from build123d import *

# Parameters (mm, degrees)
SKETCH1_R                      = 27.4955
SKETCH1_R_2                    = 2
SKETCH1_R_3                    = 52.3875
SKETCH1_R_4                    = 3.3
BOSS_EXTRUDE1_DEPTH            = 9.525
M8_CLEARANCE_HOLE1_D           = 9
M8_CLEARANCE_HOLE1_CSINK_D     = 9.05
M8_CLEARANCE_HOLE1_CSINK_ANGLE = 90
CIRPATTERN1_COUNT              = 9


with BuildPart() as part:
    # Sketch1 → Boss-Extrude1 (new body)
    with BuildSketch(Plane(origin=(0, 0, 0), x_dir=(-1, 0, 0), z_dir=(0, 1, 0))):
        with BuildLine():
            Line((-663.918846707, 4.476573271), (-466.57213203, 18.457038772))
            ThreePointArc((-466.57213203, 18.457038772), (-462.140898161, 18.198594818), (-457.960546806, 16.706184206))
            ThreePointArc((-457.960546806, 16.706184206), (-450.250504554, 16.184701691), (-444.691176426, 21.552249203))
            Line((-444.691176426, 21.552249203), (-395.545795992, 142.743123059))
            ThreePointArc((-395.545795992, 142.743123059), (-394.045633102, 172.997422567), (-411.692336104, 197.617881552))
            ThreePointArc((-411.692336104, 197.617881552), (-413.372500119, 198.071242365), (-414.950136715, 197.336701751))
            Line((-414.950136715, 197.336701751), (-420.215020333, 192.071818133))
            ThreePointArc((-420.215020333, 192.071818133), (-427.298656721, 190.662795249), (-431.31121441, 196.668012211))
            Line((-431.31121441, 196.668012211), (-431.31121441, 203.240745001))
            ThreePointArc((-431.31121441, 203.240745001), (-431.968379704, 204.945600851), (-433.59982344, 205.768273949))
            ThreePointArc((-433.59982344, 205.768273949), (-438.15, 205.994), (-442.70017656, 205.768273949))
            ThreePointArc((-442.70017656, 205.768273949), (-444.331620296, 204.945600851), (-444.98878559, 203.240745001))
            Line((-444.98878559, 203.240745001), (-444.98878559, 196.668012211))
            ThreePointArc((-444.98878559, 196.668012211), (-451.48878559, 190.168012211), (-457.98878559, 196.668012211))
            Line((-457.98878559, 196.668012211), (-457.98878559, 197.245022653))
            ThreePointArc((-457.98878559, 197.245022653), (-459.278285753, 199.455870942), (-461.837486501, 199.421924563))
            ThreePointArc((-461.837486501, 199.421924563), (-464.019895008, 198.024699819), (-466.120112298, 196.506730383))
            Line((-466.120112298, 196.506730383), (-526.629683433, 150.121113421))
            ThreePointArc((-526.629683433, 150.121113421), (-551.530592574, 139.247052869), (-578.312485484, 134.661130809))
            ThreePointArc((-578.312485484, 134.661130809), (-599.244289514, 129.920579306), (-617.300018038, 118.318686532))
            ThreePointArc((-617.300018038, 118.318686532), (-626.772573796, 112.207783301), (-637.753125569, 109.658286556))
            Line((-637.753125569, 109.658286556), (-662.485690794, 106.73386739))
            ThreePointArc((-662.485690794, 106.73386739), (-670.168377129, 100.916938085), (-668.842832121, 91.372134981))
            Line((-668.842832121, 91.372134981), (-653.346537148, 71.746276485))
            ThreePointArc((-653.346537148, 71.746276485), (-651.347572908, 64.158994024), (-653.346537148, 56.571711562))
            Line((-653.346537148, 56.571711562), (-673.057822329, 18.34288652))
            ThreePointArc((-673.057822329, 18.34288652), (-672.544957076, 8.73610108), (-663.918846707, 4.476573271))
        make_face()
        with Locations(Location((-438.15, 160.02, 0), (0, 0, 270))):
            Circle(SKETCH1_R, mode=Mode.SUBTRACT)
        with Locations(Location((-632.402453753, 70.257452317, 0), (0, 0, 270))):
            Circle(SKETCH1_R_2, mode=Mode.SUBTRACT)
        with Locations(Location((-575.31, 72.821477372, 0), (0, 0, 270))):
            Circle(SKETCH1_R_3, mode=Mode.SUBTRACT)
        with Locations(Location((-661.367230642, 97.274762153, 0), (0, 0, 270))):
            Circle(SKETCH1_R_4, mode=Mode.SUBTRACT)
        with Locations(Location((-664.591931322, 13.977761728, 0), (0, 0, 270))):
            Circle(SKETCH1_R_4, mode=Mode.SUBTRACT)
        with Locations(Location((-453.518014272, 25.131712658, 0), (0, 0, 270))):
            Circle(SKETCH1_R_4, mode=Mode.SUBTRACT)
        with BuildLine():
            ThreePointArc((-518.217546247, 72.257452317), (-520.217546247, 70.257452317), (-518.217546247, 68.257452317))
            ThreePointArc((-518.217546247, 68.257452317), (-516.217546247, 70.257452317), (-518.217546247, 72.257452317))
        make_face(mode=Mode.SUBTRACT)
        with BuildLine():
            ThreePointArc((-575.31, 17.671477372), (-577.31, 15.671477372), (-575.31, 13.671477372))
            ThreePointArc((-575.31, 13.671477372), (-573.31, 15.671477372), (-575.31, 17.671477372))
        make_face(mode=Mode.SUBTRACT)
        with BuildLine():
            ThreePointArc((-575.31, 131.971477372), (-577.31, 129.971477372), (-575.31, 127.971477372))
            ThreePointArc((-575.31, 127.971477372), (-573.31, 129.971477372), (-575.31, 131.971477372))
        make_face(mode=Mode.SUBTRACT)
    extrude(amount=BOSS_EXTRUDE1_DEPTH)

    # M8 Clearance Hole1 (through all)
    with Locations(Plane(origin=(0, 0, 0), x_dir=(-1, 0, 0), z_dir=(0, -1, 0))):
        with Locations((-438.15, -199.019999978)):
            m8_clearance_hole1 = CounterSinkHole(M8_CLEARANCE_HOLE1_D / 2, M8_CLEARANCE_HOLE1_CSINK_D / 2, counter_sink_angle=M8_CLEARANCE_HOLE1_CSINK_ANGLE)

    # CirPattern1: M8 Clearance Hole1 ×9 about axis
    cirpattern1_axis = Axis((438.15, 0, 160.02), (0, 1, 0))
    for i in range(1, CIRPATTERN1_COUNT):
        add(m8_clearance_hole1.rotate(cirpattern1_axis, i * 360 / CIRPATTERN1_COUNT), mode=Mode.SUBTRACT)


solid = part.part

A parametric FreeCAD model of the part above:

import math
import FreeCAD as App
import Part
import Sketcher

V = App.Vector
Q = App.Units.Quantity

doc = App.newDocument("Part")
params = doc.addObject("Spreadsheet::Sheet", "Params")
for row, (alias, value) in enumerate([
    ("sketch1_radius", "0.1 in"),
    ("sketch1_radius2", "1.81 in"),
    ("sketch1_diameter", "4.125 in"),
    ("sketch1_diameter2", "2.165 in"),
    ("sketch1_radius3", "0.375 in"),
    ("pad1_length", "0.375 in"),
    ("hole_diameter", "9 mm"),
    ("hole_csink_diameter", "9.05 mm"),
], start=1):
    params.set(f"A{row}", alias)
    params.set(f"B{row}", "=" + value)
    params.setAlias(f"B{row}", alias)

body = doc.addObject("PartDesign::Body", "Body")

sketch1 = doc.addObject("Sketcher::SketchObject", "Sketch")
body.addObject(sketch1)
sketch1.AttachmentSupport = (doc.XZ_Plane, [""])
sketch1.MapMode = "FlatFace"
sketch1.addGeometry([
    Part.LineSegment(V(663.9, 4.5, 0), V(466.6, 18.5, 0)),
    Part.ArcOfCircle(Part.Circle(V(465.3, 2.9, 0), V(0, 0, 1), 15.6), math.radians(85), math.radians(118)),
    Part.ArcOfCircle(Part.Circle(V(453.5, 25.1, 0), V(0, 0, 1), 9.5), math.radians(-158), math.radians(-62)),
    Part.LineSegment(V(444.7, 21.6, 0), V(395.5, 142.7, 0)),
    Part.ArcOfCircle(Part.Circle(V(438.2, 160, 0), V(0, 0, 1), 46), math.radians(125), math.radians(202)),
    Part.ArcOfCircle(Part.Circle(V(413.2, 195.5, 0), V(0, 0, 1), 2.5), math.radians(45), math.radians(125)),
    Part.LineSegment(V(415, 197.3, 0), V(420.2, 192.1, 0)),
    Part.ArcOfCircle(Part.Circle(V(424.8, 196.7, 0), V(0, 0, 1), 6.5), math.radians(-135), math.radians(0)),
    Part.LineSegment(V(431.3, 196.7, 0), V(431.3, 203.2, 0)),
    Part.ArcOfCircle(Part.Circle(V(433.9, 203.2, 0), V(0, 0, 1), 2.5), math.radians(96), math.radians(180)),
    Part.ArcOfCircle(Part.Circle(V(438.1, 160, 0), V(0, 0, 1), 46), math.radians(84.32), math.radians(95.68)),
    Part.ArcOfCircle(Part.Circle(V(442.4, 203.2, 0), V(0, 0, 1), 2.5), math.radians(0), math.radians(84)),
    Part.LineSegment(V(445, 203.2, 0), V(445, 196.7, 0)),
    Part.ArcOfCircle(Part.Circle(V(451.5, 196.7, 0), V(0, 0, 1), 6.5), math.radians(180), math.radians(360)),
    Part.LineSegment(V(458, 196.7, 0), V(458, 197.2, 0)),
    Part.ArcOfCircle(Part.Circle(V(460.5, 197.2, 0), V(0, 0, 1), 2.5), math.radians(59), math.radians(180)),
    Part.ArcOfCircle(Part.Circle(V(438.2, 160, 0), V(0, 0, 1), 46), math.radians(52.53), math.radians(58.99)),
    Part.LineSegment(V(466.1, 196.5, 0), V(526.6, 150.1, 0)),
    Part.ArcOfCircle(Part.Circle(V(583.8, 247, 0), V(0, 0, 1), 112.5), math.radians(-121), math.radians(-93)),
    Part.ArcOfCircle(Part.Circle(V(575.3, 72.8, 0), V(0, 0, 1), 61.9), math.radians(47), math.radians(87)),
    Part.ArcOfCircle(Part.Circle(V(639.6, 142.5, 0), V(0, 0, 1), 32.9), math.radians(-133), math.radians(-93)),
    Part.LineSegment(V(637.8, 109.7, 0), V(662.5, 106.7, 0)),
    Part.ArcOfCircle(Part.Circle(V(661.4, 97.3, 0), V(0, 0, 1), 9.5), math.radians(-38), math.radians(83)),
    Part.LineSegment(V(668.8, 91.4, 0), V(653.3, 71.7, 0)),
    Part.ArcOfCircle(Part.Circle(V(666.7, 64.2, 0), V(0, 0, 1), 15.4), math.radians(150), math.radians(210)),
    Part.LineSegment(V(653.3, 56.6, 0), V(673.1, 18.3, 0)),
    Part.ArcOfCircle(Part.Circle(V(664.6, 14, 0), V(0, 0, 1), 9.5), math.radians(-94), math.radians(27)),
    Part.Circle(V(664.6, 14, 0), V(0, 0, 1), 3.3),
    Part.Circle(V(575.3, 15.7, 0), V(0, 0, 1), 2),
    Part.Circle(V(632.4, 70.3, 0), V(0, 0, 1), 2),
    Part.Circle(V(661.4, 97.3, 0), V(0, 0, 1), 3.3),
    Part.Circle(V(575.3, 72.8, 0), V(0, 0, 1), 52.4),
    Part.Circle(V(453.5, 25.1, 0), V(0, 0, 1), 3.3),
    Part.Circle(V(518.2, 70.3, 0), V(0, 0, 1), 2),
    Part.Circle(V(575.3, 130, 0), V(0, 0, 1), 2),
    Part.Circle(V(438.1, 160, 0), V(0, 0, 1), 27.5),
], False)
sketch1.addConstraint([
    Sketcher.Constraint("Coincident", 0, 2, 1, 1),
    Sketcher.Constraint("Tangent", 1, 2, 2, 2),
    Sketcher.Constraint("Tangent", 2, 1, 3, 1),
    Sketcher.Constraint("Tangent", 3, 2, 4, 2),
    Sketcher.Constraint("Tangent", 4, 1, 5, 2),
    Sketcher.Constraint("Tangent", 5, 1, 6, 1),
    Sketcher.Constraint("Tangent", 6, 2, 7, 1),
    Sketcher.Constraint("Tangent", 7, 2, 8, 1),
    Sketcher.Constraint("Tangent", 8, 2, 9, 2),
    Sketcher.Constraint("Tangent", 9, 1, 10, 2),
    Sketcher.Constraint("Tangent", 10, 1, 11, 2),
    Sketcher.Constraint("Tangent", 11, 1, 12, 1),
    Sketcher.Constraint("Tangent", 12, 2, 13, 1),
    Sketcher.Constraint("Tangent", 13, 2, 14, 1),
    Sketcher.Constraint("Tangent", 14, 2, 15, 2),
    Sketcher.Constraint("Tangent", 15, 1, 16, 2),
    Sketcher.Constraint("Tangent", 16, 1, 17, 1),
    Sketcher.Constraint("Coincident", 17, 2, 18, 1),
    Sketcher.Constraint("Tangent", 18, 2, 19, 2),
    Sketcher.Constraint("Tangent", 19, 1, 20, 1),
    Sketcher.Constraint("Coincident", 20, 2, 21, 1),
    Sketcher.Constraint("Tangent", 21, 2, 22, 2),
    Sketcher.Constraint("Tangent", 22, 1, 23, 1),
    Sketcher.Constraint("Coincident", 23, 2, 24, 1),
    Sketcher.Constraint("Coincident", 24, 2, 25, 1),
    Sketcher.Constraint("Tangent", 25, 2, 26, 2),
    Sketcher.Constraint("Tangent", 26, 1, 0, 1),
    Sketcher.Constraint("Vertical", 8),
    Sketcher.Constraint("Vertical", 12),
    Sketcher.Constraint("Vertical", 14),
    Sketcher.Constraint("Coincident", 10, 3, 4, 3),
    Sketcher.Constraint("Coincident", 16, 3, 4, 3),
    Sketcher.Constraint("Coincident", 27, 3, 26, 3),
    Sketcher.Constraint("Coincident", 30, 3, 22, 3),
    Sketcher.Constraint("Coincident", 31, 3, 19, 3),
    Sketcher.Constraint("Coincident", 32, 3, 2, 3),
    Sketcher.Constraint("Coincident", 35, 3, 4, 3),
    Sketcher.Constraint("Equal", 5, 9),
    Sketcher.Constraint("Equal", 4, 10),
    Sketcher.Constraint("Equal", 9, 11),
    Sketcher.Constraint("Equal", 7, 13),
    Sketcher.Constraint("Equal", 11, 15),
    Sketcher.Constraint("Equal", 10, 16),
    Sketcher.Constraint("Equal", 2, 22),
    Sketcher.Constraint("Equal", 22, 26),
    Sketcher.Constraint("Equal", 28, 29),
    Sketcher.Constraint("Equal", 27, 30),
    Sketcher.Constraint("Equal", 30, 32),
    Sketcher.Constraint("Equal", 29, 33),
    Sketcher.Constraint("Equal", 33, 34),
    Sketcher.Constraint("Horizontal", 9, 3, 11, 3),
    Sketcher.Constraint("Horizontal", 7, 3, 13, 3),
    Sketcher.Constraint("Horizontal", 29, 3, 33, 3),
    Sketcher.Constraint("Vertical", 19, 3, 28, 3),
    Sketcher.Constraint("Vertical", 31, 3, 34, 3),
    Sketcher.Constraint("Vertical", 23, 2, 24, 2),
    Sketcher.Constraint("Radius", 5, Q("0.1 in")),
    Sketcher.Constraint("Radius", 4, Q("1.81 in")),
    Sketcher.Constraint("Diameter", 31, Q("4.125 in")),
    Sketcher.Constraint("Diameter", 35, Q("2.165 in")),
    Sketcher.Constraint("Angle", 6, Q("-45 deg")),
    Sketcher.Constraint("Radius", 2, Q("0.375 in")),
    Sketcher.Constraint("Radius", 19, Q("2.4375 in")),
    Sketcher.Constraint("DistanceY", -1, 1, 4, 3, Q("6.3 in")),
    Sketcher.Constraint("DistanceX", 10, 3, 19, 3, Q("5.4 in")),
    Sketcher.Constraint("Diameter", 27, Q("6.6 mm")),
    Sketcher.Constraint("Diameter", 28, Q("4 mm")),
    Sketcher.Constraint("DistanceX", -1, 1, 4, 3, Q("17.25 in")),
    Sketcher.Constraint("Radius", 7, Q("6.5 mm")),
    Sketcher.Constraint("DistanceY", 28, 3, 19, 3, Q("2.25 in")),
    Sketcher.Constraint("DistanceY", 31, 3, 34, 3, Q("2.25 in")),
    Sketcher.Constraint("Radius", 20, Q("32.856361 mm")),
    Sketcher.Constraint("Radius", 1, Q("15.646787 mm")),
    Sketcher.Constraint("Radius", 18, Q("112.486763 mm")),
    Sketcher.Constraint("Radius", 24, Q("15.398653 mm")),
    Sketcher.Constraint("Distance", 0, Q("197.841298 mm")),
    Sketcher.Constraint("DistanceY", 14, 1, 14, 2, Q("0.57701 mm")),
    Sketcher.Constraint("DistanceX", -1, 1, 18, 3, Q("583.767602 mm")),
    Sketcher.Constraint("DistanceY", -1, 1, 5, 1, Q("197.336702 mm")),
    Sketcher.Constraint("DistanceX", 7, 3, 2, 3, Q("28.7068 mm")),
    Sketcher.Constraint("DistanceY", 2, 3, 7, 3, Q("171.5363 mm")),
    Sketcher.Constraint("DistanceY", 20, 3, 13, 3, Q("54.2044 mm")),
    Sketcher.Constraint("DistanceX", 1, 3, 24, 3, Q("201.487899 mm")),
    Sketcher.Constraint("DistanceX", 22, 3, 26, 3, Q("3.224701 mm")),
    Sketcher.Constraint("DistanceY", 26, 3, 22, 3, Q("83.297 mm")),
    Sketcher.Constraint("DistanceX", 1, 2, 33, 3, Q("60.256999 mm")),
    Sketcher.Constraint("DistanceY", 20, 2, 19, 1, Q("8.6604 mm")),
    Sketcher.Constraint("DistanceX", 22, 3, 22, 1, Q("7.475601 mm")),
    Sketcher.Constraint("Distance", 21, Q("24.904859 mm")),
    Sketcher.Constraint("Distance", 23, Q("25.006189 mm")),
    Sketcher.Constraint("Distance", 25, Q("43.011369 mm")),
    Sketcher.Constraint("DistanceY", -1, 1, 18, 3, Q("247.015541 mm")),
    Sketcher.Constraint("DistanceX", -1, 1, 22, 3, Q("661.367231 mm")),
    Sketcher.Constraint("DistanceY", 24, 3, 29, 3, Q("6.098458 mm")),
    Sketcher.Constraint("DistanceX", 16, 1, 17, 2, Q("60.509571 mm")),
    Sketcher.Constraint("DistanceX", 29, 3, 20, 2, Q("5.350672 mm")),
])
sketch1.setExpression("Constraints[56]", "Params.sketch1_radius")
sketch1.setExpression("Constraints[57]", "Params.sketch1_radius2")
sketch1.setExpression("Constraints[58]", "Params.sketch1_diameter")
sketch1.setExpression("Constraints[59]", "Params.sketch1_diameter2")
sketch1.setExpression("Constraints[61]", "Params.sketch1_radius3")
pad1 = doc.addObject("PartDesign::Pad", "Pad")
body.addObject(pad1)
pad1.Profile = sketch1
pad1.setExpression("Length", "Params.pad1_length")
pad1.Reversed = True

sketch2 = doc.addObject("Sketcher::SketchObject", "Sketch001")
body.addObject(sketch2)
sketch2.AttachmentSupport = (doc.XZ_Plane, [""])
sketch2.MapMode = "FlatFace"
sketch2.addGeometry(Part.Circle(V(438.1, 199, 0), V(0, 0, 1), 4.5), False)
sketch2.addConstraint([
    Sketcher.Constraint("Diameter", 0, Q("9 mm")),
    Sketcher.Constraint("DistanceX", -1, 1, 0, 3, Q("17.25 in")),
    Sketcher.Constraint("DistanceY", -1, 1, 0, 3, Q("199.02 mm")),
])
doc.recompute()
hole = doc.addObject("PartDesign::Hole", "Hole")
body.addObject(hole)
hole.Profile = sketch2
hole.ThreadType = "None"
hole.setExpression("Diameter", "Params.hole_diameter")
hole.DepthType = "ThroughAll"
hole.HoleCutType = "Countersink"
hole.setExpression("HoleCutDiameter", "Params.hole_csink_diameter")
hole.HoleCutCountersinkAngle = 90
doc.recompute()

datumline = doc.addObject("PartDesign::Line", "DatumLine")
body.addObject(datumline)
datumline.Placement = App.Placement(V(438.15, 0, 160.02), App.Rotation(V(0, 0, 1), V(0, 1, 0)))
polarpattern = doc.addObject("PartDesign::PolarPattern", "PolarPattern")
body.addObject(polarpattern)
polarpattern.Originals = [hole]
polarpattern.Axis = (datumline, [""])
polarpattern.Angle = 360
polarpattern.Occurrences = 9
body.Tip = polarpattern

doc.recompute()
